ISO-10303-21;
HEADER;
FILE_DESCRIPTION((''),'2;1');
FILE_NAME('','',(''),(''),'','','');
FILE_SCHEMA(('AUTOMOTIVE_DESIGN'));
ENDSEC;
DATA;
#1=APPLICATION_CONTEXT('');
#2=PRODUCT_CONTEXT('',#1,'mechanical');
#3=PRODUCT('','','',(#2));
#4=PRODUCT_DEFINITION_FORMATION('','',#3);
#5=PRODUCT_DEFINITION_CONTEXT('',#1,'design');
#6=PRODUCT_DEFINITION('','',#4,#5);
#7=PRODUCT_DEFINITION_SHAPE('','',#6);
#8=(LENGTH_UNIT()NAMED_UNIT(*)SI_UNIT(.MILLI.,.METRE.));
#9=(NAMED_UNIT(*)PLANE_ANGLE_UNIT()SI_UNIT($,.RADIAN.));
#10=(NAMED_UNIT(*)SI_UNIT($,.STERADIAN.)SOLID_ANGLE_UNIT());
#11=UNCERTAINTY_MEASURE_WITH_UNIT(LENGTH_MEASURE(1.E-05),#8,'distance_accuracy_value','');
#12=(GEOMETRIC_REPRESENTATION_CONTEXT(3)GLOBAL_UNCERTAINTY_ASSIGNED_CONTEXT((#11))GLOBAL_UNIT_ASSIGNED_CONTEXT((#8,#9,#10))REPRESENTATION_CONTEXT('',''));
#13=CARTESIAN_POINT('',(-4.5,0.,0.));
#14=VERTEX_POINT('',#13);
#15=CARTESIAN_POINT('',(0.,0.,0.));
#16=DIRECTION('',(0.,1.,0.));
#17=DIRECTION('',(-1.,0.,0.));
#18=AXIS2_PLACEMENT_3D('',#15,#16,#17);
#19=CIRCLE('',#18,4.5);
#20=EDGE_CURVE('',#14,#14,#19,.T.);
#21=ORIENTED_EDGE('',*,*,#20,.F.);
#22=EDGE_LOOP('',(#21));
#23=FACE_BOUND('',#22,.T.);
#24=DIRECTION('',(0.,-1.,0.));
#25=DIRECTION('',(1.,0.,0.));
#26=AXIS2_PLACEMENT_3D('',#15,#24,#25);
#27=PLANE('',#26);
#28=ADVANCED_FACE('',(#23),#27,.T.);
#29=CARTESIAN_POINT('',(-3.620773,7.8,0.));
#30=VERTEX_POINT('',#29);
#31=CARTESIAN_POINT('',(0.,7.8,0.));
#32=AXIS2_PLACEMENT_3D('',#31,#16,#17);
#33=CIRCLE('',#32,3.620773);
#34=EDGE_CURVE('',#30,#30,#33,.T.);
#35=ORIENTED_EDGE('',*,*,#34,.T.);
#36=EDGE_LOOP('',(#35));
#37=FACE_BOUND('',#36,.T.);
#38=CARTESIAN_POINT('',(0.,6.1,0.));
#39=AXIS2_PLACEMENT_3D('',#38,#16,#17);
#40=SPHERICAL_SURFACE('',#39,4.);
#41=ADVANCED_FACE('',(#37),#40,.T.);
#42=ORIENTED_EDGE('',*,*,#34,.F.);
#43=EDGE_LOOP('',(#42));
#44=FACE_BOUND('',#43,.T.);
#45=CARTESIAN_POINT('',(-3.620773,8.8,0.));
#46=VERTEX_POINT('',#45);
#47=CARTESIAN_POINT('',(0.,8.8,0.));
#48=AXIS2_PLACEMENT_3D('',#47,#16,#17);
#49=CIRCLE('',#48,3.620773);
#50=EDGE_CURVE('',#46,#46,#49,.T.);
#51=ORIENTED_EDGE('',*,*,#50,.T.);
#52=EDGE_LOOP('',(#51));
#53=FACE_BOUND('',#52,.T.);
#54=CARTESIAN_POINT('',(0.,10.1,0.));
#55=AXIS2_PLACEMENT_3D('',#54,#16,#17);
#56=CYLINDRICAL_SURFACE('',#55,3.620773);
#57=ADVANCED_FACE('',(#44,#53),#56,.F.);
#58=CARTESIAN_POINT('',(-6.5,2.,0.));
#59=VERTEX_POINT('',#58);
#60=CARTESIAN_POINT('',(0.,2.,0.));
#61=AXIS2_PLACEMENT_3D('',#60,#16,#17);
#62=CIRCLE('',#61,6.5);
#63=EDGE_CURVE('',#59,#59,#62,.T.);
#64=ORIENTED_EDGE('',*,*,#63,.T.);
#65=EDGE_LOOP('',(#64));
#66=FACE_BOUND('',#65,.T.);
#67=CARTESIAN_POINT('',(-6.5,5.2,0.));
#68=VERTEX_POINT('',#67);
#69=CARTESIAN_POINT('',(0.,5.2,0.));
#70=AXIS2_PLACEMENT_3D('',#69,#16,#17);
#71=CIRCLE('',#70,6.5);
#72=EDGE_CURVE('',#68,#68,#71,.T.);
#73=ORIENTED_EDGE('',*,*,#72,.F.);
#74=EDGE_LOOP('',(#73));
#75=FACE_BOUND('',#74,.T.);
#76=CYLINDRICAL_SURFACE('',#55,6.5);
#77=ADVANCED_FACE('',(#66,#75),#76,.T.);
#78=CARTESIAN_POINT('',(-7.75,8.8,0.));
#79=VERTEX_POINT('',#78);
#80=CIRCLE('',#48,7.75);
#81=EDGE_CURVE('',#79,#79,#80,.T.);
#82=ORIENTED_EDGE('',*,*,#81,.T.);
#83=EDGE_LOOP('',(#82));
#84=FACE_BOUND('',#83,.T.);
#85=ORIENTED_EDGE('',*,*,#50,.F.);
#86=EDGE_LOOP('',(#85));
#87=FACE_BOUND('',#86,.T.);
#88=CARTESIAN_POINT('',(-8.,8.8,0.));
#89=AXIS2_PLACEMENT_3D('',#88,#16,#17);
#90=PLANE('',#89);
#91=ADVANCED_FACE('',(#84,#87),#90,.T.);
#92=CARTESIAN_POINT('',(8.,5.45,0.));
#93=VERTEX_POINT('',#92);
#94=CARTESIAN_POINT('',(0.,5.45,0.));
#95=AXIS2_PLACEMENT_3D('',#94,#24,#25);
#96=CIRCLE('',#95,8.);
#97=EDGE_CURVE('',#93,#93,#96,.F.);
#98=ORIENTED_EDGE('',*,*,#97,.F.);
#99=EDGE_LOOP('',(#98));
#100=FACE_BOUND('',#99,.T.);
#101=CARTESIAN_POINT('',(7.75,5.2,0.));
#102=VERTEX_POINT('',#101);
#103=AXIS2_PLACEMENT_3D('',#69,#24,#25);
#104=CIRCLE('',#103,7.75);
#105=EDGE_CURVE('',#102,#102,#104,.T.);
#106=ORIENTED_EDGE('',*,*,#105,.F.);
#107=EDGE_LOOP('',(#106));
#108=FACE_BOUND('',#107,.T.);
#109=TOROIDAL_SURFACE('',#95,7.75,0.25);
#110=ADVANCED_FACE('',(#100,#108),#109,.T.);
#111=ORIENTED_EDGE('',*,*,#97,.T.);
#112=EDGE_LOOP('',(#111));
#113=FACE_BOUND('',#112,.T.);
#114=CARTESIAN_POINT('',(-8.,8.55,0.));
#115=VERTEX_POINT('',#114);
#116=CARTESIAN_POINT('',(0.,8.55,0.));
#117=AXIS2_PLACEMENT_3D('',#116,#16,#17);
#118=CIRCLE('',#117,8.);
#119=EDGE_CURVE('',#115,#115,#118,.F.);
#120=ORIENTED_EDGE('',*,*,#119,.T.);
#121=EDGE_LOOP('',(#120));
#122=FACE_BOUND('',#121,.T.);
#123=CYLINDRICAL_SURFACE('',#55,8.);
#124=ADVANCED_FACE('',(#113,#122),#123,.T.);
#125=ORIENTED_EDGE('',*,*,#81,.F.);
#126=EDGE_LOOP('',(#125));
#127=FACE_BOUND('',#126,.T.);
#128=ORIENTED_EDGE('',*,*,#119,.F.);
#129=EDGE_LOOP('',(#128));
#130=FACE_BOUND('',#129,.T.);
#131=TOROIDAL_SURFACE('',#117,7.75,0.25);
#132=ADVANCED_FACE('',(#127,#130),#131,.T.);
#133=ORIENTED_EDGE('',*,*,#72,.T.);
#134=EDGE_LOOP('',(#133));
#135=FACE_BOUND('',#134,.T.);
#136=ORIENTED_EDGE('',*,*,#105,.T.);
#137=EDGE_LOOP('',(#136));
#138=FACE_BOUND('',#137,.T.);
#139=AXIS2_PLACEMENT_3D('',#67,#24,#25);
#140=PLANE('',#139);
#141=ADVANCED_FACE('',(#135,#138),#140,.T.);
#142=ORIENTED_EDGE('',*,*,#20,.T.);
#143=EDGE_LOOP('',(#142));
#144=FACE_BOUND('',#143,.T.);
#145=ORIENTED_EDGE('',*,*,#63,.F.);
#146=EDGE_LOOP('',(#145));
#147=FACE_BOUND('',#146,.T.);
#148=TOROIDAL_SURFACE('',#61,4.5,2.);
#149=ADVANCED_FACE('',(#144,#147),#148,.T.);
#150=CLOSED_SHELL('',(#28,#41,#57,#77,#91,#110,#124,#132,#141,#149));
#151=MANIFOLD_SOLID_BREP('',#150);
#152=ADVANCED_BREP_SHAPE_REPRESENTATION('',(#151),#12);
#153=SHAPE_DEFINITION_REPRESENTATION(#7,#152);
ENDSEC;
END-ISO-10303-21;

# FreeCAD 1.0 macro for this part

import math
import FreeCAD as App
import Part
import Sketcher


def edges_at(feature, points):
    """Names of the edges that pass closest to the given points."""
    edges = feature.Shape.Edges
    near = lambda p: min(range(len(edges)), key=lambda i: edges[i].distToShape(Part.Vertex(*p))[0])
    return sorted({f"Edge{near(p) + 1}" for p in points})

doc = App.newDocument("Part")
body = doc.addObject("PartDesign::Body", "Body")

# Sketch on XY plane
sketch1 = body.newObject("Sketcher::SketchObject", "Sketch")
sketch1.AttachmentSupport = (doc.getObject("XY_Plane"), [""])
sketch1.MapMode = "FlatFace"
sketch1.addGeometry([
    Part.LineSegment(App.Vector(-4.5, 0, 0), App.Vector(0, 0, 0)),  # 0
    Part.LineSegment(App.Vector(0, 0, 0), App.Vector(0, 10.1, 0)),  # 1
    Part.ArcOfCircle(Part.Circle(App.Vector(0, 6.1, 0), App.Vector(0, 0, 1), 4), math.radians(90), math.radians(155)),  # 2
    Part.LineSegment(App.Vector(-3.6, 7.8, 0), App.Vector(-3.6, 8.8, 0)),  # 3
    Part.LineSegment(App.Vector(-3.6, 8.8, 0), App.Vector(-8, 8.8, 0)),  # 4
    Part.LineSegment(App.Vector(-8, 8.8, 0), App.Vector(-8, 5.2, 0)),  # 5
    Part.LineSegment(App.Vector(-8, 5.2, 0), App.Vector(-6.5, 5.2, 0)),  # 6
    Part.LineSegment(App.Vector(-6.5, 5.2, 0), App.Vector(-6.5, 2, 0)),  # 7
    Part.ArcOfCircle(Part.Circle(App.Vector(-4.5, 2, 0), App.Vector(0, 0, 1), 2), math.radians(-180), math.radians(-90)),  # 8
], False)
sketch1.addConstraint([
    Sketcher.Constraint("Coincident", 0, 2, 1, 1),
    Sketcher.Constraint("Coincident", 1, 2, 2, 1),
    Sketcher.Constraint("Coincident", 2, 2, 3, 1),
    Sketcher.Constraint("Coincident", 3, 2, 4, 1),
    Sketcher.Constraint("Coincident", 4, 2, 5, 1),
    Sketcher.Constraint("Coincident", 5, 2, 6, 1),
    Sketcher.Constraint("Coincident", 6, 2, 7, 1),
    Sketcher.Constraint("Tangent", 7, 2, 8, 1),
    Sketcher.Constraint("Tangent", 8, 2, 0, 1),
    Sketcher.Constraint("Horizontal", 0),
    Sketcher.Constraint("Vertical", 1),
    Sketcher.Constraint("Vertical", 3),
    Sketcher.Constraint("Horizontal", 4),
    Sketcher.Constraint("Vertical", 5),
    Sketcher.Constraint("Horizontal", 6),
    Sketcher.Constraint("Vertical", 7),
    Sketcher.Constraint("Coincident", 0, 2, -1, 1),
    Sketcher.Constraint("PointOnObject", 2, 3, -2),
    Sketcher.Constraint("Radius", 2, 4.0),
    Sketcher.Constraint("Radius", 8, 2.0),
    Sketcher.Constraint("DistanceY", 3, 1, 3, 2, 1.0),
    Sketcher.Constraint("DistanceX", 0, 1, 0, 2, 4.5),
    Sketcher.Constraint("DistanceX", 6, 1, 6, 2, 1.5),
    Sketcher.Constraint("DistanceY", 1, 1, 1, 2, 10.1),
    Sketcher.Constraint("DistanceY", 5, 2, 5, 1, 3.6),
    Sketcher.Constraint("DistanceY", 7, 2, 7, 1, 3.2),
])
revolution = body.newObject("PartDesign::Revolution", "Revolution")
revolution.Profile = sketch1
revolution.ReferenceAxis = (sketch1, ["V_Axis"])
revolution.Angle = 360
doc.recompute()

fillet = body.newObject("PartDesign::Fillet", "Fillet")
fillet.Base = (revolution, edges_at(revolution, [(8, 8.8, 0), (8, 5.2, 0)]))
fillet.Radius = 0.25

doc.recompute()
